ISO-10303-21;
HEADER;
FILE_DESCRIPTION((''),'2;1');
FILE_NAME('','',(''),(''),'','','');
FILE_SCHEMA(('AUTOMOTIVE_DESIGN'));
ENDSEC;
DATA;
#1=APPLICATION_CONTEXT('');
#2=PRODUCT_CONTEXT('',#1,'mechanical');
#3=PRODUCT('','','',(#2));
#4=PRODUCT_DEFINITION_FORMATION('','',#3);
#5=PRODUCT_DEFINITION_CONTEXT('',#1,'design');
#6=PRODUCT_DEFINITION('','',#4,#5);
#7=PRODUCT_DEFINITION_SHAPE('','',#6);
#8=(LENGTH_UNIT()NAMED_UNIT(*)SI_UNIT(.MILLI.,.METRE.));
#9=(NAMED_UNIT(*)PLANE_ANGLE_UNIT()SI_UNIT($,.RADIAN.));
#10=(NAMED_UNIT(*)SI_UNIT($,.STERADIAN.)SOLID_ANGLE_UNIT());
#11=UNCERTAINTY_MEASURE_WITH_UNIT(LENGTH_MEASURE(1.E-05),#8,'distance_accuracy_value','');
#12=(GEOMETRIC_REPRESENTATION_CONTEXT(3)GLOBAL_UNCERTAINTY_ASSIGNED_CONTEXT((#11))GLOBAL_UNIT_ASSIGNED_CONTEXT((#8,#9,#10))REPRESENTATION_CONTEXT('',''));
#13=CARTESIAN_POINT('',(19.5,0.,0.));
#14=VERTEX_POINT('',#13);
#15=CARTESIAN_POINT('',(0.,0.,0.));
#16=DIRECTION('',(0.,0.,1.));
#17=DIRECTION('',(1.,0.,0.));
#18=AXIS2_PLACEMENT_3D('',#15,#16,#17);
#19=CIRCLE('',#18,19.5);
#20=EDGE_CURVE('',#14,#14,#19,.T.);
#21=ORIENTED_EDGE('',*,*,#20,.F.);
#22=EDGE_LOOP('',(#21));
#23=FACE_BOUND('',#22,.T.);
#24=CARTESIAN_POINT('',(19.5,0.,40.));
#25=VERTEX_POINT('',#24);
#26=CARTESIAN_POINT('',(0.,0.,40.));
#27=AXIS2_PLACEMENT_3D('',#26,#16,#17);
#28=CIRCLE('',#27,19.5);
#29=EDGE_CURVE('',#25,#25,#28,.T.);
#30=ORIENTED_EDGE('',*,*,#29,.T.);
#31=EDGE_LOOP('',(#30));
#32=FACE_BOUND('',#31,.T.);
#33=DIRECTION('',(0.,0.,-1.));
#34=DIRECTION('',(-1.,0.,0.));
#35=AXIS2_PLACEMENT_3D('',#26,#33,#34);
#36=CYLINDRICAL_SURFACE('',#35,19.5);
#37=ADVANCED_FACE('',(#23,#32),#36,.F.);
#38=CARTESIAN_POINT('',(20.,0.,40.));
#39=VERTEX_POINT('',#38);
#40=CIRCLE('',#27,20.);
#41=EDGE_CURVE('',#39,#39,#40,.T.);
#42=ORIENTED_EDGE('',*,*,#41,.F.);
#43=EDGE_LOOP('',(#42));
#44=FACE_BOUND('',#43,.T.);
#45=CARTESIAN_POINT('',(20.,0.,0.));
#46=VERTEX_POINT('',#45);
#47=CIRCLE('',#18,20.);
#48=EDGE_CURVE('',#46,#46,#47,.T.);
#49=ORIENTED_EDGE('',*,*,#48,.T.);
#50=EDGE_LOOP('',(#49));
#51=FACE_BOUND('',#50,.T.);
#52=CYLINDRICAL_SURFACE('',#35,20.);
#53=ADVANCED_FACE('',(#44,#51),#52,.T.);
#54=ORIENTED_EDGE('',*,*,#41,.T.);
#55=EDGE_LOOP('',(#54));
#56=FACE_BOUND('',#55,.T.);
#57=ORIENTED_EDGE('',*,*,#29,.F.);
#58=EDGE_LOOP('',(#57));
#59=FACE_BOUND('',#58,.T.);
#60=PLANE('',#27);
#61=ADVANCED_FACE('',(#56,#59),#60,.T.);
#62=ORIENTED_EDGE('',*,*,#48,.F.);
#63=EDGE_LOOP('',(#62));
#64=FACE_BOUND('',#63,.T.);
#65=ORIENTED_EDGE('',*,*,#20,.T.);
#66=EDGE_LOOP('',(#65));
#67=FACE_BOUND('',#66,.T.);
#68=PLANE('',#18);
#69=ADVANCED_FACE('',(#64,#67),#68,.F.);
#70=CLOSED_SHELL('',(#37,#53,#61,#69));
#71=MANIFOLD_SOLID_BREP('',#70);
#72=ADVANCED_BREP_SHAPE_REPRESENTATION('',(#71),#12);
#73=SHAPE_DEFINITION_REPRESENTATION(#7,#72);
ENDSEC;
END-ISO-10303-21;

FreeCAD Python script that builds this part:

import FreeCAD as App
import Part
import Sketcher
from FreeCAD import Vector

doc = App.newDocument("Part")
params = doc.addObject("Spreadsheet::Sheet", "Params")
for row, (alias, value) in enumerate([
    ("sketch1_diameter", "40 mm"),
    ("sketch1_diameter2", "39 mm"),
    ("pad1_length", "40 mm"),
], start=1):
    params.set(f"A{row}", alias)
    params.set(f"B{row}", "=" + value)
    params.setAlias(f"B{row}", alias)

body = doc.addObject("PartDesign::Body", "Body")

sketch1 = doc.addObject("Sketcher::SketchObject", "Sketch")
body.addObject(sketch1)
sketch1.AttachmentSupport = (doc.XY_Plane, [""])
sketch1.MapMode = "FlatFace"
sketch1.addGeometry([
    Part.Circle(Vector(0, 0, 0), Vector(0, 0, 1), 20),
    Part.Circle(Vector(0, 0, 0), Vector(0, 0, 1), 20),
], False)
sketch1.addConstraint([
    Sketcher.Constraint("Coincident", 0, 3, -1, 1),
    Sketcher.Constraint("Coincident", 1, 3, -1, 1),
    Sketcher.Constraint("Diameter", 0, 40.0),
    Sketcher.Constraint("Diameter", 1, 39.0),
])
sketch1.setExpression("Constraints[2]", "Params.sketch1_diameter")
sketch1.setExpression("Constraints[3]", "Params.sketch1_diameter2")
pad1 = doc.addObject("PartDesign::Pad", "Pad")
body.addObject(pad1)
pad1.Profile = sketch1
pad1.setExpression("Length", "Params.pad1_length")

doc.recompute()
